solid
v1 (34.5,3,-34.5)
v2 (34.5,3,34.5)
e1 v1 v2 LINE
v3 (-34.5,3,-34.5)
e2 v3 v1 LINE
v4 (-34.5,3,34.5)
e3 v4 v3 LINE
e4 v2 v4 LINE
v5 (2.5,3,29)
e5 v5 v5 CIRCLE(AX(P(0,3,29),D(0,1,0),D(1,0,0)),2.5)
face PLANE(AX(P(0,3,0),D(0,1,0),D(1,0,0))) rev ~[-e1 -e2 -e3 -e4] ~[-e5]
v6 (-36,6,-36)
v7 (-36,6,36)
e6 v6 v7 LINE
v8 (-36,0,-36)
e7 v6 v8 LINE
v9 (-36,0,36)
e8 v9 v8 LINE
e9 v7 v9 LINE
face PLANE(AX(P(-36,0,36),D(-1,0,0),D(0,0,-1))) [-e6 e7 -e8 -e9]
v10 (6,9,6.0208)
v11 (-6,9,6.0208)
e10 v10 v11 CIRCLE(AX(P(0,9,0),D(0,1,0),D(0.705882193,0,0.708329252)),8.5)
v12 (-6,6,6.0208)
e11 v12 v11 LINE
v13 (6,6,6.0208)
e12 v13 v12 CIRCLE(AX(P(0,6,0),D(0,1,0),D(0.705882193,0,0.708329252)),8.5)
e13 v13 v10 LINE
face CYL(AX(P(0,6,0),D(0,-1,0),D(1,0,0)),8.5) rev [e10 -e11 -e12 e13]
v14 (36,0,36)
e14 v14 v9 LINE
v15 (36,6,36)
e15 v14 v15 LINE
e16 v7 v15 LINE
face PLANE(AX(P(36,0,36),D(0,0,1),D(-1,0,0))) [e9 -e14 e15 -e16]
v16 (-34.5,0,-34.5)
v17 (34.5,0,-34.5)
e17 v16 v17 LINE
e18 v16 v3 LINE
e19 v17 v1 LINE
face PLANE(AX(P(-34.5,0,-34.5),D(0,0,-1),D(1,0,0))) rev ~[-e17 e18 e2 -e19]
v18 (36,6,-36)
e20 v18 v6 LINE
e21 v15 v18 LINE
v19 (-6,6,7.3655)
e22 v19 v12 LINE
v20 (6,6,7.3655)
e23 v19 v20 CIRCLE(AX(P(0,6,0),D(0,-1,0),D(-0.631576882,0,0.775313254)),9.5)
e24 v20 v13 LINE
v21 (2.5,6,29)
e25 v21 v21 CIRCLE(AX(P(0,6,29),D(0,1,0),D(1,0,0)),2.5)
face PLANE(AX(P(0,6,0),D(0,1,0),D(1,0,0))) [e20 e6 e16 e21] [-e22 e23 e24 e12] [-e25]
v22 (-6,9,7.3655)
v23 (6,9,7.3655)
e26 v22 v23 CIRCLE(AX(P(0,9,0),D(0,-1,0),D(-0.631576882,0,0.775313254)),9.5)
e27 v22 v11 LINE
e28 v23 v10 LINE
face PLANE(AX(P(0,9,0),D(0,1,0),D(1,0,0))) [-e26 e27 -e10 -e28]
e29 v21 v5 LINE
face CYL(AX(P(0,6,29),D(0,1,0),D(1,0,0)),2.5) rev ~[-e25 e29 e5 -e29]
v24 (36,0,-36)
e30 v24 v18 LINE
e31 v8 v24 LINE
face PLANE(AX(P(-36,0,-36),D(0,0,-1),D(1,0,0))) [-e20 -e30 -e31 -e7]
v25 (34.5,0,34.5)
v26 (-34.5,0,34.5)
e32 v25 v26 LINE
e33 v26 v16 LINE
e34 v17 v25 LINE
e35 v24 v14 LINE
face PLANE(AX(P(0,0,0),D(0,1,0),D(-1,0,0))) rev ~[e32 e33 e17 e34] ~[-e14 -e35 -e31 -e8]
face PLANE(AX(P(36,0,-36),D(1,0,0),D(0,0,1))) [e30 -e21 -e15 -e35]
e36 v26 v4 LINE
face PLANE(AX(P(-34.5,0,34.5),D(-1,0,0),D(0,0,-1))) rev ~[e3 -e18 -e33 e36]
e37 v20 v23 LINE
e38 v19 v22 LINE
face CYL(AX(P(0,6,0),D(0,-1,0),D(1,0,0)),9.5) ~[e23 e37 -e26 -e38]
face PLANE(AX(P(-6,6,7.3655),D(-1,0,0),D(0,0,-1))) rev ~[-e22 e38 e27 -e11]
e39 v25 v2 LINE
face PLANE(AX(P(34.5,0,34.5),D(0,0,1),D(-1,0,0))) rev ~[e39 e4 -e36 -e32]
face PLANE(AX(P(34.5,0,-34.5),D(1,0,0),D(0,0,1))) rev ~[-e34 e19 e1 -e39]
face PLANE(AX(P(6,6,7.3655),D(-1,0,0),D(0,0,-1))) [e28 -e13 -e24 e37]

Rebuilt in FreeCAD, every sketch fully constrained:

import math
import FreeCAD as App
import Part
import Sketcher
from FreeCAD import Vector
Q = App.Units.Quantity


def add_polygon(sketch, points):
    """Adds a closed chain of lines whose ends are joined by coincident constraints."""
    first, n = sketch.GeometryCount, len(points)
    for a, b in zip(points, points[1:] + points[:1]):
        sketch.addGeometry(Part.LineSegment(App.Vector(*a, 0), App.Vector(*b, 0)), False)
    for i in range(n):
        sketch.addConstraint(Sketcher.Constraint("Coincident", first + i, 2, first + (i + 1) % n, 1))

doc = App.newDocument("Part")
body = doc.addObject("PartDesign::Body", "Body")

sketch1 = body.newObject("Sketcher::SketchObject", "Sketch")
sketch1.AttachmentSupport = (doc.getObject("XZ_Plane"), [""])
sketch1.MapMode = "FlatFace"
add_polygon(sketch1, [(-36, 36), (36, 36), (36, -36), (-36, -36)])
add_polygon(sketch1, [(34, -34), (34, 34), (-34, 34), (-34, -34)])
sketch1.addConstraint([
    Sketcher.Constraint("Horizontal", 0),
    Sketcher.Constraint("Vertical", 1),
    Sketcher.Constraint("Horizontal", 2),
    Sketcher.Constraint("Vertical", 3),
    Sketcher.Constraint("Vertical", 4),
    Sketcher.Constraint("Horizontal", 5),
    Sketcher.Constraint("Vertical", 6),
    Sketcher.Constraint("Horizontal", 7),
    Sketcher.Constraint("Symmetric", 0, 2, 2, 2, -1, 1),
    Sketcher.Constraint("Symmetric", 4, 2, 6, 2, -1, 1),
    Sketcher.Constraint("Equal", 2, 1),
    Sketcher.Constraint("Equal", 7, 4),
    Sketcher.Constraint("DistanceX", 0, 1, 0, 2, Q("72 mm")),
    Sketcher.Constraint("DistanceX", 5, 2, 5, 1, Q("69 mm")),
])
pad1 = body.newObject("PartDesign::Pad", "Pad")
pad1.Profile = sketch1
pad1.Length = 3
pad1.Reversed = True

sketch2 = body.newObject("Sketcher::SketchObject", "Sketch001")
sketch2.AttachmentSupport = (doc.getObject("XZ_Plane"), [""])
sketch2.MapMode = "FlatFace"
sketch2.AttachmentOffset = App.Placement(Vector(0, 0, -3), App.Rotation())
add_polygon(sketch2, [(36, -36), (-36, -36), (-36, 36), (36, 36)])
sketch2.addConstraint([
    Sketcher.Constraint("Horizontal", 0),
    Sketcher.Constraint("Vertical", 1),
    Sketcher.Constraint("Horizontal", 2),
    Sketcher.Constraint("Vertical", 3),
    Sketcher.Constraint("Symmetric", 0, 2, 2, 2, -1, 1),
    Sketcher.Constraint("Equal", 2, 1),
    Sketcher.Constraint("DistanceX", 0, 2, 0, 1, Q("72 mm")),
])
pad2 = body.newObject("PartDesign::Pad", "Pad001")
pad2.Profile = sketch2
pad2.Length = 3
pad2.Reversed = True

sketch3 = body.newObject("Sketcher::SketchObject", "Sketch002")
sketch3.AttachmentSupport = (doc.getObject("XZ_Plane"), [""])
sketch3.MapMode = "FlatFace"
sketch3.AttachmentOffset = App.Placement(Vector(0, 0, -6), App.Rotation())
sketch3.addGeometry([
    Part.ArcOfCircle(Part.Circle(Vector(0, 0, 0), Vector(0, 0, 1), 8.5), math.radians(135), math.radians(405)),
    Part.LineSegment(Vector(6, 6, 0), Vector(6, 7.4, 0)),
    Part.ArcOfCircle(Part.Circle(Vector(0, 0, 0), Vector(0, 0, 1), 9.5), math.radians(129), math.radians(411)),
    Part.LineSegment(Vector(-6, 7.4, 0), Vector(-6, 6, 0)),
], False)
sketch3.addConstraint([
    Sketcher.Constraint("Coincident", 0, 2, 1, 1),
    Sketcher.Constraint("Coincident", 1, 2, 2, 2),
    Sketcher.Constraint("Coincident", 2, 1, 3, 1),
    Sketcher.Constraint("Coincident", 3, 2, 0, 1),
    Sketcher.Constraint("Vertical", 1),
    Sketcher.Constraint("Vertical", 3),
    Sketcher.Constraint("Coincident", 0, 3, -1, 1),
    Sketcher.Constraint("Coincident", 2, 3, -1, 1),
    Sketcher.Constraint("Horizontal", 1, 2, 2, 1),
    Sketcher.Constraint("Radius", 0, Q("8.5 mm")),
    Sketcher.Constraint("Radius", 2, Q("9.5 mm")),
    Sketcher.Constraint("DistanceX", -1, 1, 0, 2, Q("6 mm")),
])
pad3 = body.newObject("PartDesign::Pad", "Pad002")
pad3.Profile = sketch3
pad3.Length = 3
pad3.Reversed = True

sketch4 = body.newObject("Sketcher::SketchObject", "Sketch003")
sketch4.AttachmentSupport = (doc.getObject("XZ_Plane"), [""])
sketch4.MapMode = "FlatFace"
sketch4.AttachmentOffset = App.Placement(Vector(0, 0, -6), App.Rotation())
sketch4.addGeometry(Part.Circle(Vector(0, 29, 0), Vector(0, 0, 1), 2.5), False)
sketch4.addConstraint([
    Sketcher.Constraint("PointOnObject", 0, 3, -2),
    Sketcher.Constraint("Diameter", 0, Q("5 mm")),
    Sketcher.Constraint("DistanceY", -1, 1, 0, 3, Q("29 mm")),
])
pocket1 = body.newObject("PartDesign::Pocket", "Pocket")
pocket1.Profile = sketch4
pocket1.Length = 3
pocket1.Reversed = True

doc.recompute()
